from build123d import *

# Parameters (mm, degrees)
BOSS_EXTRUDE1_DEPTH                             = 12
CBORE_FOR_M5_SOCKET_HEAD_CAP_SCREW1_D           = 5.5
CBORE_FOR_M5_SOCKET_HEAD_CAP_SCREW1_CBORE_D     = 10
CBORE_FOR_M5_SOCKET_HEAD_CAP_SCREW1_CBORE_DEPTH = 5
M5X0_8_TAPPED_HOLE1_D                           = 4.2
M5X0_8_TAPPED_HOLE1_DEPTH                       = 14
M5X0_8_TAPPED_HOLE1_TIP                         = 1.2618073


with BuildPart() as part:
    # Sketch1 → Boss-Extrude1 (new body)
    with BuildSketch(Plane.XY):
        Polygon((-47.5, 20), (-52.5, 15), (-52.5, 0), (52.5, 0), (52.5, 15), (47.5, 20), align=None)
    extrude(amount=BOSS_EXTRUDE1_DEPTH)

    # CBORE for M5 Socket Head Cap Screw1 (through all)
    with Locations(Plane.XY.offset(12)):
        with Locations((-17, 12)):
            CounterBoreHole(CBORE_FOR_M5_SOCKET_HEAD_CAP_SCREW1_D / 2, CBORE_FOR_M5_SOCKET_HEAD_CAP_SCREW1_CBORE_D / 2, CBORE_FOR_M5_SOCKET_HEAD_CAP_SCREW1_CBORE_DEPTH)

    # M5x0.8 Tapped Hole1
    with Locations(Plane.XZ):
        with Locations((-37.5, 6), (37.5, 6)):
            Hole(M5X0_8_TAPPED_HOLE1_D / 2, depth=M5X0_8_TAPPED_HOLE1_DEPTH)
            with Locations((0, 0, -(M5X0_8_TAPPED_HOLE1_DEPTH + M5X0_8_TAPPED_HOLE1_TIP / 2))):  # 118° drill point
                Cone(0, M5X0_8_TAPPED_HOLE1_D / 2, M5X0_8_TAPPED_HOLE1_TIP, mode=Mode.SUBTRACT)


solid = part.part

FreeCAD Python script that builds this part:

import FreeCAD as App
import Part
import Sketcher

V = App.Vector
Q = App.Units.Quantity

doc = App.newDocument("Part")
body = doc.addObject("PartDesign::Body", "Body")

# Sketch on XY plane
sketch1 = body.newObject("Sketcher::SketchObject", "Sketch")
sketch1.AttachmentSupport = (doc.getObject("XY_Plane"), [""])
sketch1.MapMode = "FlatFace"
sketch1.addGeometry(Part.LineSegment(V(-48, 20, 0), V(-52, 15, 0)), False)
sketch1.addGeometry(Part.LineSegment(V(-52, 15, 0), V(-52, 0, 0)), False)
sketch1.addGeometry(Part.LineSegment(V(-52, 0, 0), V(52, 0, 0)), False)
sketch1.addGeometry(Part.LineSegment(V(52, 0, 0), V(52, 15, 0)), False)
sketch1.addGeometry(Part.LineSegment(V(52, 15, 0), V(48, 20, 0)), False)
sketch1.addGeometry(Part.LineSegment(V(48, 20, 0), V(-48, 20, 0)), False)
sketch1.addConstraint(Sketcher.Constraint("Coincident", 0, 2, 1, 1))
sketch1.addConstraint(Sketcher.Constraint("Coincident", 1, 2, 2, 1))
sketch1.addConstraint(Sketcher.Constraint("Coincident", 2, 2, 3, 1))
sketch1.addConstraint(Sketcher.Constraint("Coincident", 3, 2, 4, 1))
sketch1.addConstraint(Sketcher.Constraint("Coincident", 4, 2, 5, 1))
sketch1.addConstraint(Sketcher.Constraint("Coincident", 5, 2, 0, 1))
sketch1.addConstraint(Sketcher.Constraint("Vertical", 1))
sketch1.addConstraint(Sketcher.Constraint("Horizontal", 2))
sketch1.addConstraint(Sketcher.Constraint("Vertical", 3))
sketch1.addConstraint(Sketcher.Constraint("Horizontal", 5))
sketch1.addConstraint(Sketcher.Constraint("Symmetric", 1, 2, 2, 2, -1, 1))
sketch1.addConstraint(Sketcher.Constraint("Perpendicular", 0, 4))
sketch1.addConstraint(Sketcher.Constraint("Horizontal", 0, 2, 3, 2))
sketch1.addConstraint(Sketcher.Constraint("Equal", 0, 4))
sketch1.addConstraint(Sketcher.Constraint("DistanceX", 2, 1, 2, 2, Q("105 mm")))
sketch1.addConstraint(Sketcher.Constraint("DistanceX", 5, 2, 5, 1, Q("95 mm")))
sketch1.addConstraint(Sketcher.Constraint("DistanceY", 1, 2, 1, 1, Q("15 mm")))
pad1 = body.newObject("PartDesign::Pad", "Pad")
pad1.Profile = sketch1
pad1.Length = 12

# Sketch on XY plane
sketch2 = body.newObject("Sketcher::SketchObject", "Sketch001")
sketch2.AttachmentSupport = (doc.getObject("XY_Plane"), [""])
sketch2.MapMode = "FlatFace"
sketch2.AttachmentOffset = App.Placement(V(0, 0, 12), App.Rotation())
sketch2.addGeometry(Part.Circle(V(-17, 12, 0), V(0, 0, 1), 2.8), False)
sketch2.addConstraint(Sketcher.Constraint("Diameter", 0, Q("5.5 mm")))
sketch2.addConstraint(Sketcher.Constraint("DistanceX", 0, 3, -1, 1, Q("17 mm")))
sketch2.addConstraint(Sketcher.Constraint("DistanceY", -1, 1, 0, 3, Q("12 mm")))
doc.recompute()
hole = body.newObject("PartDesign::Hole", "Hole")
hole.Profile = sketch2
hole.ThreadType = "None"
hole.Diameter = 5.5
hole.DepthType = "ThroughAll"
hole.HoleCutType = "Counterbore"
hole.HoleCutDiameter = 10
hole.HoleCutDepth = 5

# Sketch on XZ plane
sketch3 = body.newObject("Sketcher::SketchObject", "Sketch002")
sketch3.AttachmentSupport = (doc.getObject("XZ_Plane"), [""])
sketch3.MapMode = "FlatFace"
sketch3.addGeometry(Part.Circle(V(-37.5, 6, 0), V(0, 0, 1), 2.1), False)
sketch3.addGeometry(Part.Circle(V(37.5, 6, 0), V(0, 0, 1), 2.1), False)
sketch3.addConstraint(Sketcher.Constraint("Equal", 0, 1))
sketch3.addConstraint(Sketcher.Constraint("Symmetric", 0, 3, 1, 3, -2))
sketch3.addConstraint(Sketcher.Constraint("Diameter", 0, Q("4.2 mm")))
sketch3.addConstraint(Sketcher.Constraint("DistanceY", -1, 1, 0, 3, Q("6 mm")))
sketch3.addConstraint(Sketcher.Constraint("DistanceX", 0, 3, 1, 3, Q("75 mm")))
doc.recompute()
hole2 = body.newObject("PartDesign::Hole", "Hole001")
hole2.Profile = sketch3
hole2.ThreadType = "None"
hole2.Diameter = 4.2
hole2.DepthType = "Dimension"
hole2.Depth = 14
hole2.DrillPoint = "Angled"
hole2.DrillPointAngle = 118

doc.recompute()
